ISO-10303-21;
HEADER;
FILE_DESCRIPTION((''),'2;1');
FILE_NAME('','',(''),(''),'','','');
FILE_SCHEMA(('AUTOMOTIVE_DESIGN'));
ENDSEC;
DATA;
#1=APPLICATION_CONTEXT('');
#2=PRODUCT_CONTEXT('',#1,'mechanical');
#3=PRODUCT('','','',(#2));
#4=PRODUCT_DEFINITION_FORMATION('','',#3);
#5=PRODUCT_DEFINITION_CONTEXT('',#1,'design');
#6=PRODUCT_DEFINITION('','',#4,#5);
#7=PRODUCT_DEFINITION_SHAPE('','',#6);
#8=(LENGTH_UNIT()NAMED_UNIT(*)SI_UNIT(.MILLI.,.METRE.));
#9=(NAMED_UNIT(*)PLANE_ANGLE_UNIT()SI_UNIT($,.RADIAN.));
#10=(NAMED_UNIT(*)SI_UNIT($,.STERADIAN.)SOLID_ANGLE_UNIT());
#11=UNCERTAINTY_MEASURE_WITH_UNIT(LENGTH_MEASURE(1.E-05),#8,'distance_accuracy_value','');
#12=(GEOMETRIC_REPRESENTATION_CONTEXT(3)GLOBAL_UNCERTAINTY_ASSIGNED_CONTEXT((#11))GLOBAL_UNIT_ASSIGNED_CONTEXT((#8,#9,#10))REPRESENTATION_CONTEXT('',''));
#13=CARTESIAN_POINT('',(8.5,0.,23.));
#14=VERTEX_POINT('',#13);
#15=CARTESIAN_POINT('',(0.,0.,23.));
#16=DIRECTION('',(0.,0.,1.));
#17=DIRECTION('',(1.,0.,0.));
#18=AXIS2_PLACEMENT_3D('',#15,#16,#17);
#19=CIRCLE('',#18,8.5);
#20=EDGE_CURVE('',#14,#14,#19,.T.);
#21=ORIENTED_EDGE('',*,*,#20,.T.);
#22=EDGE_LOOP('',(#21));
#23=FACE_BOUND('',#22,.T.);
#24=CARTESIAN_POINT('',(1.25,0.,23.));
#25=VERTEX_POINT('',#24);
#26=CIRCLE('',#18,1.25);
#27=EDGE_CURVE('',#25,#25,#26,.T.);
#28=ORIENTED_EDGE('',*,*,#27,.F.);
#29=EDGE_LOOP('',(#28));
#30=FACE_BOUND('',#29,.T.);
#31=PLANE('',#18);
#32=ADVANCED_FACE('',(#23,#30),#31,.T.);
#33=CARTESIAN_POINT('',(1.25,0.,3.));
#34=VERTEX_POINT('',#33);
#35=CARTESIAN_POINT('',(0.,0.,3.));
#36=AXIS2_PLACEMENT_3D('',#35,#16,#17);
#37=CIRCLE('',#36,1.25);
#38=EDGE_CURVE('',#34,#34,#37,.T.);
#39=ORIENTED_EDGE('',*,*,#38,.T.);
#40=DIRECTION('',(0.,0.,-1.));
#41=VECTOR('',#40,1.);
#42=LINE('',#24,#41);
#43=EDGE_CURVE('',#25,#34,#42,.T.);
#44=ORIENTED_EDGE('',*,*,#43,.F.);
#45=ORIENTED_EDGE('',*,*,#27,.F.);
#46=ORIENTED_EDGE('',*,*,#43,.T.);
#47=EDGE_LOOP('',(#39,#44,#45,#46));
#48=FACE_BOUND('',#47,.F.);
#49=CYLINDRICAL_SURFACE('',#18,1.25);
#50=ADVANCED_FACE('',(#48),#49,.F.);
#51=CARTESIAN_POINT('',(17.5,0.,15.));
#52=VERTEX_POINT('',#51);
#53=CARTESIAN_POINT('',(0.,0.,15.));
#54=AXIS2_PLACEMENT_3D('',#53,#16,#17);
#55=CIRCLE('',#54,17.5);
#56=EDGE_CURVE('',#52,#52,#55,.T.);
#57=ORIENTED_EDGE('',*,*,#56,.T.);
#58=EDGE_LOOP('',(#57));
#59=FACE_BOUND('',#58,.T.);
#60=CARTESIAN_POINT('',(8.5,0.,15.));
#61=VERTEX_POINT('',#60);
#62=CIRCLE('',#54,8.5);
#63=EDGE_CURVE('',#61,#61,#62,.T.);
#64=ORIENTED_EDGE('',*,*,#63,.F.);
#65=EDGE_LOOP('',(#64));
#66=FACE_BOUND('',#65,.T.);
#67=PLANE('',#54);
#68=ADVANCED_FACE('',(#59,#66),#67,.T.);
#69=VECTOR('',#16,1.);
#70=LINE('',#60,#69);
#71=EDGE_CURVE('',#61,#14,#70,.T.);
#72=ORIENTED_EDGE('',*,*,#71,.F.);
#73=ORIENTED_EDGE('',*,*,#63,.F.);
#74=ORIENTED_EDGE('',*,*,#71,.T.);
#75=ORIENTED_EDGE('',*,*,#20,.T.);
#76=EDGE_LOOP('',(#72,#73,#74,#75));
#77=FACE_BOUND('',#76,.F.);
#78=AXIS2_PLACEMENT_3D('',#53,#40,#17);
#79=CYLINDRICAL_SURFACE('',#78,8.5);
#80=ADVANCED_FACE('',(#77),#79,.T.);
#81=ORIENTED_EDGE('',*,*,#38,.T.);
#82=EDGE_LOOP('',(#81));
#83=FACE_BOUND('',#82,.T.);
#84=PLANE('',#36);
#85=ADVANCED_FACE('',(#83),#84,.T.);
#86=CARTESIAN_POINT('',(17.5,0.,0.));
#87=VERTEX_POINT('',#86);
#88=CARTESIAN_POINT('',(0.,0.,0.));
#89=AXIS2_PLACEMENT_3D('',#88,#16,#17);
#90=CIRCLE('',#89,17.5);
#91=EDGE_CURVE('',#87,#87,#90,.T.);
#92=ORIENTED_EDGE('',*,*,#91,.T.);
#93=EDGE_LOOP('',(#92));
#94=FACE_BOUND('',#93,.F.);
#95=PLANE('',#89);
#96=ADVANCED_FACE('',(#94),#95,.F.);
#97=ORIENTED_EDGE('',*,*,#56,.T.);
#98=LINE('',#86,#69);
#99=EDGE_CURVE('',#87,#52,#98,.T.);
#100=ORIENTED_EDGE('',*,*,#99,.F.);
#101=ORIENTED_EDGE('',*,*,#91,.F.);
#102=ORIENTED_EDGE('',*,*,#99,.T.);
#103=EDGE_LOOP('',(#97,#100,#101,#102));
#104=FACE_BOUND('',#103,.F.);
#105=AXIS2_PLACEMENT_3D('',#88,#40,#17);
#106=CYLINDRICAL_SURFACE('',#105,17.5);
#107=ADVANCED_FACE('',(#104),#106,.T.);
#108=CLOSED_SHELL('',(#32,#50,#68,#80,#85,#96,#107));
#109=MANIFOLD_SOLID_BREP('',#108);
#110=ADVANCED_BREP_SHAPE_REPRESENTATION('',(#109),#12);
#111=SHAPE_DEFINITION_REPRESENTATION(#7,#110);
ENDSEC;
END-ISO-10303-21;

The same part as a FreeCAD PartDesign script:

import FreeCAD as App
import Part
import Sketcher

V = App.Vector

doc = App.newDocument("Part")
body = doc.addObject("PartDesign::Body", "Body")

sketch1 = body.newObject("Sketcher::SketchObject", "Sketch")
sketch1.AttachmentSupport = (doc.getObject("XY_Plane"), [""])
sketch1.MapMode = "FlatFace"
sketch1.addGeometry(Part.Circle(V(0, 0, 0), V(0, 0, 1), 18), False)
sketch1.addConstraint([
    Sketcher.Constraint("Coincident", 0, 3, -1, 1),
    Sketcher.Constraint("Diameter", 0, 35.0),
])
pad1 = body.newObject("PartDesign::Pad", "Pad")
pad1.Profile = sketch1
pad1.Length = 15

sketch2 = body.newObject("Sketcher::SketchObject", "Sketch001")
sketch2.AttachmentSupport = (doc.getObject("XY_Plane"), [""])
sketch2.MapMode = "FlatFace"
sketch2.AttachmentOffset = App.Placement(V(0, 0, 15), App.Rotation())
sketch2.addGeometry(Part.Circle(V(0, 0, 0), V(0, 0, 1), 8), False)
sketch2.addConstraint([
    Sketcher.Constraint("Coincident", 0, 3, -1, 1),
    Sketcher.Constraint("Diameter", 0, 17.0),
])
pad2 = body.newObject("PartDesign::Pad", "Pad001")
pad2.Profile = sketch2
pad2.Length = 8

sketch3 = body.newObject("Sketcher::SketchObject", "Sketch002")
sketch3.AttachmentSupport = (doc.getObject("XY_Plane"), [""])
sketch3.MapMode = "FlatFace"
sketch3.AttachmentOffset = App.Placement(V(0, 0, 23), App.Rotation())
sketch3.addGeometry(Part.Circle(V(0, 0, 0), V(0, 0, 1), 1.2), False)
sketch3.addConstraint([
    Sketcher.Constraint("Coincident", 0, 3, -1, 1),
    Sketcher.Constraint("Diameter", 0, 2.5),
])
pocket1 = body.newObject("PartDesign::Pocket", "Pocket")
pocket1.Profile = sketch3
pocket1.Length = 20

doc.recompute()
